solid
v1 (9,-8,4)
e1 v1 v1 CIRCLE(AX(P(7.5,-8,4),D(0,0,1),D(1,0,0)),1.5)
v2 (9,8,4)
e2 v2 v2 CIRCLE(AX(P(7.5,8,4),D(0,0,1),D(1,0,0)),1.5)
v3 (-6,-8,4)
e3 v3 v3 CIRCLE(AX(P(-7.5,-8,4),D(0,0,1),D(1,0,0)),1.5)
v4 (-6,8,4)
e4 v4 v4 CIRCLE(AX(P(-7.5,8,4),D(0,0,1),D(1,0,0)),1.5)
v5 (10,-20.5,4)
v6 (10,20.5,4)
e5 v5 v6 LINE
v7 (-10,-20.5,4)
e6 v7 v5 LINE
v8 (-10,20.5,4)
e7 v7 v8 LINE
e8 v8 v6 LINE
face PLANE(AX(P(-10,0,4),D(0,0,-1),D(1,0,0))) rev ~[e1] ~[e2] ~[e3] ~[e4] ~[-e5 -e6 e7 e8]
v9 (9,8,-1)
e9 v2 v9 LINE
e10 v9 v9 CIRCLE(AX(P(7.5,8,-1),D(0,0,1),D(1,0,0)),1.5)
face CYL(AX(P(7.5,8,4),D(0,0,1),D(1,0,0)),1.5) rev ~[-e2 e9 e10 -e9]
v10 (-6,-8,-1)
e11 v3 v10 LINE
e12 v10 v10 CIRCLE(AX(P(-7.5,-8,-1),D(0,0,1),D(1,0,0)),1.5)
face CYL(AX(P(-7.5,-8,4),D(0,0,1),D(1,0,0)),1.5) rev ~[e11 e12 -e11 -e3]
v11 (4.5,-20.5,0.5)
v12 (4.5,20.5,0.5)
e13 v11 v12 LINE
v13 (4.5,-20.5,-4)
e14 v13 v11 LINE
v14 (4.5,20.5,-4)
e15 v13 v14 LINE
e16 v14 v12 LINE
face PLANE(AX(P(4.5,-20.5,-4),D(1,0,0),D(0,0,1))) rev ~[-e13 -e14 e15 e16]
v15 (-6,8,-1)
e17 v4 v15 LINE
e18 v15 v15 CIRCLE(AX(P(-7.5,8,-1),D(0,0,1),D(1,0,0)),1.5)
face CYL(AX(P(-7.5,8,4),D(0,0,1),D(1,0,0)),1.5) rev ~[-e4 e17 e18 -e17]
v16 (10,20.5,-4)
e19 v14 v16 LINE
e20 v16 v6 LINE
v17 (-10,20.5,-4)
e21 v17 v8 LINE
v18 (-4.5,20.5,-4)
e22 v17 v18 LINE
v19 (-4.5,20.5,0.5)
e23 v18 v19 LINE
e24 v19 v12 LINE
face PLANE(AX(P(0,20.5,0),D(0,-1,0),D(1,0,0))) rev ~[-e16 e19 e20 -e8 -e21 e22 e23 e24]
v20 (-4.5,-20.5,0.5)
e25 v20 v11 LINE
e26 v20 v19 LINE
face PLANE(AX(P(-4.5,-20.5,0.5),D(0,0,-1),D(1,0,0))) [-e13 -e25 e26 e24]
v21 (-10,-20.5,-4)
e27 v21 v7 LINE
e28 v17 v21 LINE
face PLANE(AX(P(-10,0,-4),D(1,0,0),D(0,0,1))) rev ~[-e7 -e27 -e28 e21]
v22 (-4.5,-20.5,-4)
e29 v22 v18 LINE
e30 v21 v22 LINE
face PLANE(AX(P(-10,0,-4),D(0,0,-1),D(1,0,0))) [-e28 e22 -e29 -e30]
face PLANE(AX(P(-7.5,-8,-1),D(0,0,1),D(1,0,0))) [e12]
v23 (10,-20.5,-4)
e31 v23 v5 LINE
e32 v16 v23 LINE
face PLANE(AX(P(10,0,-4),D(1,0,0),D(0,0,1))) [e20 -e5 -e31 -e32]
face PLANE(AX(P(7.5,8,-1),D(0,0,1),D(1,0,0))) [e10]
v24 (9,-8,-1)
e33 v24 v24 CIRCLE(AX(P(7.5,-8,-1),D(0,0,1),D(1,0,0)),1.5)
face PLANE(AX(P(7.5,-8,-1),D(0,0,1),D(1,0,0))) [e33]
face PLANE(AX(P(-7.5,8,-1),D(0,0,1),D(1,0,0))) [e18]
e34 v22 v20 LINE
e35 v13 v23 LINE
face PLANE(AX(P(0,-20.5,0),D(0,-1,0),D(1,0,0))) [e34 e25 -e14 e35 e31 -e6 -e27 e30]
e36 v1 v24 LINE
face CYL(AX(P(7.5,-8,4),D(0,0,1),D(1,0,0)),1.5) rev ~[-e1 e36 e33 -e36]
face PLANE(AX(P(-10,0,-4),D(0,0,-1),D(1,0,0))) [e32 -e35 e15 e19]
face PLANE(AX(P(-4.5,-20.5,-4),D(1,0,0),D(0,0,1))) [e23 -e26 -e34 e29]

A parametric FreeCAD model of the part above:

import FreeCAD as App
import Part
import Sketcher

doc = App.newDocument("Part")
body = doc.addObject("PartDesign::Body", "Body")

sketch1 = body.newObject("Sketcher::SketchObject", "Sketch")
sketch1.AttachmentSupport = (doc.getObject("XZ_Plane"), [""])
sketch1.MapMode = "FlatFace"
sketch1.addGeometry(Part.LineSegment(App.Vector(-10, 4, 0), App.Vector(-10, -4, 0)), False)
sketch1.addGeometry(Part.LineSegment(App.Vector(-10, -4, 0), App.Vector(10, -4, 0)), False)
sketch1.addGeometry(Part.LineSegment(App.Vector(10, -4, 0), App.Vector(10, 4, 0)), False)
sketch1.addGeometry(Part.LineSegment(App.Vector(10, 4, 0), App.Vector(-10, 4, 0)), False)
sketch1.addConstraint(Sketcher.Constraint("Coincident", 0, 2, 1, 1))
sketch1.addConstraint(Sketcher.Constraint("Coincident", 1, 2, 2, 1))
sketch1.addConstraint(Sketcher.Constraint("Coincident", 2, 2, 3, 1))
sketch1.addConstraint(Sketcher.Constraint("Coincident", 3, 2, 0, 1))
sketch1.addConstraint(Sketcher.Constraint("Vertical", 0))
sketch1.addConstraint(Sketcher.Constraint("Horizontal", 1))
sketch1.addConstraint(Sketcher.Constraint("Vertical", 2))
sketch1.addConstraint(Sketcher.Constraint("Horizontal", 3))
sketch1.addConstraint(Sketcher.Constraint("Symmetric", 0, 2, 2, 2, -1, 1))
sketch1.addConstraint(Sketcher.Constraint("DistanceX", 1, 1, 1, 2, 20.0))
sketch1.addConstraint(Sketcher.Constraint("DistanceY", 0, 2, 0, 1, 8.0))
pad1 = body.newObject("PartDesign::Pad", "Pad")
pad1.Profile = sketch1
pad1.Length = 41
pad1.Midplane = True

sketch2 = body.newObject("Sketcher::SketchObject", "Sketch001")
sketch2.AttachmentSupport = (doc.getObject("XZ_Plane"), [""])
sketch2.MapMode = "FlatFace"
sketch2.AttachmentOffset = App.Placement(App.Vector(0, 0, 20.5), App.Rotation())
sketch2.addGeometry(Part.LineSegment(App.Vector(-4.5, 0.5, 0), App.Vector(-4.5, -4, 0)), False)
sketch2.addGeometry(Part.LineSegment(App.Vector(-4.5, -4, 0), App.Vector(4.5, -4, 0)), False)
sketch2.addGeometry(Part.LineSegment(App.Vector(4.5, -4, 0), App.Vector(4.5, 0.5, 0)), False)
sketch2.addGeometry(Part.LineSegment(App.Vector(4.5, 0.5, 0), App.Vector(-4.5, 0.5, 0)), False)
sketch2.addConstraint(Sketcher.Constraint("Coincident", 0, 2, 1, 1))
sketch2.addConstraint(Sketcher.Constraint("Coincident", 1, 2, 2, 1))
sketch2.addConstraint(Sketcher.Constraint("Coincident", 2, 2, 3, 1))
sketch2.addConstraint(Sketcher.Constraint("Coincident", 3, 2, 0, 1))
sketch2.addConstraint(Sketcher.Constraint("Vertical", 0))
sketch2.addConstraint(Sketcher.Constraint("Horizontal", 1))
sketch2.addConstraint(Sketcher.Constraint("Vertical", 2))
sketch2.addConstraint(Sketcher.Constraint("Horizontal", 3))
sketch2.addConstraint(Sketcher.Constraint("DistanceX", 1, 1, 1, 2, 9.0))
sketch2.addConstraint(Sketcher.Constraint("DistanceY", 0, 2, 0, 1, 4.5))
sketch2.addConstraint(Sketcher.Constraint("DistanceY", 0, 2, -1, 1, 4.0))
sketch2.addConstraint(Sketcher.Constraint("DistanceX", 0, 2, -1, 1, 4.5))
pocket1 = body.newObject("PartDesign::Pocket", "Pocket")
pocket1.Profile = sketch2
pocket1.Type = "ThroughAll"

sketch3 = body.newObject("Sketcher::SketchObject", "Sketch002")
sketch3.AttachmentSupport = (doc.getObject("XY_Plane"), [""])
sketch3.MapMode = "FlatFace"
sketch3.AttachmentOffset = App.Placement(App.Vector(0, 0, 4), App.Rotation())
sketch3.addGeometry(Part.Circle(App.Vector(-7.5, 8, 0), App.Vector(0, 0, 1), 1.5), False)
sketch3.addGeometry(Part.Circle(App.Vector(7.5, 8, 0), App.Vector(0, 0, 1), 1.5), False)
sketch3.addGeometry(Part.Circle(App.Vector(7.5, -8, 0), App.Vector(0, 0, 1), 1.5), False)
sketch3.addGeometry(Part.Circle(App.Vector(-7.5, -8, 0), App.Vector(0, 0, 1), 1.5), False)
sketch3.addConstraint(Sketcher.Constraint("Equal", 0, 1))
sketch3.addConstraint(Sketcher.Constraint("Equal", 1, 2))
sketch3.addConstraint(Sketcher.Constraint("Equal", 2, 3))
sketch3.addConstraint(Sketcher.Constraint("Symmetric", 0, 3, 2, 3, -1, 1))
sketch3.addConstraint(Sketcher.Constraint("Symmetric", 1, 3, 3, 3, -1, 1))
sketch3.addConstraint(Sketcher.Constraint("Symmetric", 0, 3, 1, 3, -2))
sketch3.addConstraint(Sketcher.Constraint("Diameter", 0, 3.0))
sketch3.addConstraint(Sketcher.Constraint("DistanceY", -1, 1, 0, 3, 8.0))
sketch3.addConstraint(Sketcher.Constraint("DistanceX", 0, 3, 1, 3, 15.0))
pocket2 = body.newObject("PartDesign::Pocket", "Pocket001")
pocket2.Profile = sketch3
pocket2.Length = 5

doc.recompute()
